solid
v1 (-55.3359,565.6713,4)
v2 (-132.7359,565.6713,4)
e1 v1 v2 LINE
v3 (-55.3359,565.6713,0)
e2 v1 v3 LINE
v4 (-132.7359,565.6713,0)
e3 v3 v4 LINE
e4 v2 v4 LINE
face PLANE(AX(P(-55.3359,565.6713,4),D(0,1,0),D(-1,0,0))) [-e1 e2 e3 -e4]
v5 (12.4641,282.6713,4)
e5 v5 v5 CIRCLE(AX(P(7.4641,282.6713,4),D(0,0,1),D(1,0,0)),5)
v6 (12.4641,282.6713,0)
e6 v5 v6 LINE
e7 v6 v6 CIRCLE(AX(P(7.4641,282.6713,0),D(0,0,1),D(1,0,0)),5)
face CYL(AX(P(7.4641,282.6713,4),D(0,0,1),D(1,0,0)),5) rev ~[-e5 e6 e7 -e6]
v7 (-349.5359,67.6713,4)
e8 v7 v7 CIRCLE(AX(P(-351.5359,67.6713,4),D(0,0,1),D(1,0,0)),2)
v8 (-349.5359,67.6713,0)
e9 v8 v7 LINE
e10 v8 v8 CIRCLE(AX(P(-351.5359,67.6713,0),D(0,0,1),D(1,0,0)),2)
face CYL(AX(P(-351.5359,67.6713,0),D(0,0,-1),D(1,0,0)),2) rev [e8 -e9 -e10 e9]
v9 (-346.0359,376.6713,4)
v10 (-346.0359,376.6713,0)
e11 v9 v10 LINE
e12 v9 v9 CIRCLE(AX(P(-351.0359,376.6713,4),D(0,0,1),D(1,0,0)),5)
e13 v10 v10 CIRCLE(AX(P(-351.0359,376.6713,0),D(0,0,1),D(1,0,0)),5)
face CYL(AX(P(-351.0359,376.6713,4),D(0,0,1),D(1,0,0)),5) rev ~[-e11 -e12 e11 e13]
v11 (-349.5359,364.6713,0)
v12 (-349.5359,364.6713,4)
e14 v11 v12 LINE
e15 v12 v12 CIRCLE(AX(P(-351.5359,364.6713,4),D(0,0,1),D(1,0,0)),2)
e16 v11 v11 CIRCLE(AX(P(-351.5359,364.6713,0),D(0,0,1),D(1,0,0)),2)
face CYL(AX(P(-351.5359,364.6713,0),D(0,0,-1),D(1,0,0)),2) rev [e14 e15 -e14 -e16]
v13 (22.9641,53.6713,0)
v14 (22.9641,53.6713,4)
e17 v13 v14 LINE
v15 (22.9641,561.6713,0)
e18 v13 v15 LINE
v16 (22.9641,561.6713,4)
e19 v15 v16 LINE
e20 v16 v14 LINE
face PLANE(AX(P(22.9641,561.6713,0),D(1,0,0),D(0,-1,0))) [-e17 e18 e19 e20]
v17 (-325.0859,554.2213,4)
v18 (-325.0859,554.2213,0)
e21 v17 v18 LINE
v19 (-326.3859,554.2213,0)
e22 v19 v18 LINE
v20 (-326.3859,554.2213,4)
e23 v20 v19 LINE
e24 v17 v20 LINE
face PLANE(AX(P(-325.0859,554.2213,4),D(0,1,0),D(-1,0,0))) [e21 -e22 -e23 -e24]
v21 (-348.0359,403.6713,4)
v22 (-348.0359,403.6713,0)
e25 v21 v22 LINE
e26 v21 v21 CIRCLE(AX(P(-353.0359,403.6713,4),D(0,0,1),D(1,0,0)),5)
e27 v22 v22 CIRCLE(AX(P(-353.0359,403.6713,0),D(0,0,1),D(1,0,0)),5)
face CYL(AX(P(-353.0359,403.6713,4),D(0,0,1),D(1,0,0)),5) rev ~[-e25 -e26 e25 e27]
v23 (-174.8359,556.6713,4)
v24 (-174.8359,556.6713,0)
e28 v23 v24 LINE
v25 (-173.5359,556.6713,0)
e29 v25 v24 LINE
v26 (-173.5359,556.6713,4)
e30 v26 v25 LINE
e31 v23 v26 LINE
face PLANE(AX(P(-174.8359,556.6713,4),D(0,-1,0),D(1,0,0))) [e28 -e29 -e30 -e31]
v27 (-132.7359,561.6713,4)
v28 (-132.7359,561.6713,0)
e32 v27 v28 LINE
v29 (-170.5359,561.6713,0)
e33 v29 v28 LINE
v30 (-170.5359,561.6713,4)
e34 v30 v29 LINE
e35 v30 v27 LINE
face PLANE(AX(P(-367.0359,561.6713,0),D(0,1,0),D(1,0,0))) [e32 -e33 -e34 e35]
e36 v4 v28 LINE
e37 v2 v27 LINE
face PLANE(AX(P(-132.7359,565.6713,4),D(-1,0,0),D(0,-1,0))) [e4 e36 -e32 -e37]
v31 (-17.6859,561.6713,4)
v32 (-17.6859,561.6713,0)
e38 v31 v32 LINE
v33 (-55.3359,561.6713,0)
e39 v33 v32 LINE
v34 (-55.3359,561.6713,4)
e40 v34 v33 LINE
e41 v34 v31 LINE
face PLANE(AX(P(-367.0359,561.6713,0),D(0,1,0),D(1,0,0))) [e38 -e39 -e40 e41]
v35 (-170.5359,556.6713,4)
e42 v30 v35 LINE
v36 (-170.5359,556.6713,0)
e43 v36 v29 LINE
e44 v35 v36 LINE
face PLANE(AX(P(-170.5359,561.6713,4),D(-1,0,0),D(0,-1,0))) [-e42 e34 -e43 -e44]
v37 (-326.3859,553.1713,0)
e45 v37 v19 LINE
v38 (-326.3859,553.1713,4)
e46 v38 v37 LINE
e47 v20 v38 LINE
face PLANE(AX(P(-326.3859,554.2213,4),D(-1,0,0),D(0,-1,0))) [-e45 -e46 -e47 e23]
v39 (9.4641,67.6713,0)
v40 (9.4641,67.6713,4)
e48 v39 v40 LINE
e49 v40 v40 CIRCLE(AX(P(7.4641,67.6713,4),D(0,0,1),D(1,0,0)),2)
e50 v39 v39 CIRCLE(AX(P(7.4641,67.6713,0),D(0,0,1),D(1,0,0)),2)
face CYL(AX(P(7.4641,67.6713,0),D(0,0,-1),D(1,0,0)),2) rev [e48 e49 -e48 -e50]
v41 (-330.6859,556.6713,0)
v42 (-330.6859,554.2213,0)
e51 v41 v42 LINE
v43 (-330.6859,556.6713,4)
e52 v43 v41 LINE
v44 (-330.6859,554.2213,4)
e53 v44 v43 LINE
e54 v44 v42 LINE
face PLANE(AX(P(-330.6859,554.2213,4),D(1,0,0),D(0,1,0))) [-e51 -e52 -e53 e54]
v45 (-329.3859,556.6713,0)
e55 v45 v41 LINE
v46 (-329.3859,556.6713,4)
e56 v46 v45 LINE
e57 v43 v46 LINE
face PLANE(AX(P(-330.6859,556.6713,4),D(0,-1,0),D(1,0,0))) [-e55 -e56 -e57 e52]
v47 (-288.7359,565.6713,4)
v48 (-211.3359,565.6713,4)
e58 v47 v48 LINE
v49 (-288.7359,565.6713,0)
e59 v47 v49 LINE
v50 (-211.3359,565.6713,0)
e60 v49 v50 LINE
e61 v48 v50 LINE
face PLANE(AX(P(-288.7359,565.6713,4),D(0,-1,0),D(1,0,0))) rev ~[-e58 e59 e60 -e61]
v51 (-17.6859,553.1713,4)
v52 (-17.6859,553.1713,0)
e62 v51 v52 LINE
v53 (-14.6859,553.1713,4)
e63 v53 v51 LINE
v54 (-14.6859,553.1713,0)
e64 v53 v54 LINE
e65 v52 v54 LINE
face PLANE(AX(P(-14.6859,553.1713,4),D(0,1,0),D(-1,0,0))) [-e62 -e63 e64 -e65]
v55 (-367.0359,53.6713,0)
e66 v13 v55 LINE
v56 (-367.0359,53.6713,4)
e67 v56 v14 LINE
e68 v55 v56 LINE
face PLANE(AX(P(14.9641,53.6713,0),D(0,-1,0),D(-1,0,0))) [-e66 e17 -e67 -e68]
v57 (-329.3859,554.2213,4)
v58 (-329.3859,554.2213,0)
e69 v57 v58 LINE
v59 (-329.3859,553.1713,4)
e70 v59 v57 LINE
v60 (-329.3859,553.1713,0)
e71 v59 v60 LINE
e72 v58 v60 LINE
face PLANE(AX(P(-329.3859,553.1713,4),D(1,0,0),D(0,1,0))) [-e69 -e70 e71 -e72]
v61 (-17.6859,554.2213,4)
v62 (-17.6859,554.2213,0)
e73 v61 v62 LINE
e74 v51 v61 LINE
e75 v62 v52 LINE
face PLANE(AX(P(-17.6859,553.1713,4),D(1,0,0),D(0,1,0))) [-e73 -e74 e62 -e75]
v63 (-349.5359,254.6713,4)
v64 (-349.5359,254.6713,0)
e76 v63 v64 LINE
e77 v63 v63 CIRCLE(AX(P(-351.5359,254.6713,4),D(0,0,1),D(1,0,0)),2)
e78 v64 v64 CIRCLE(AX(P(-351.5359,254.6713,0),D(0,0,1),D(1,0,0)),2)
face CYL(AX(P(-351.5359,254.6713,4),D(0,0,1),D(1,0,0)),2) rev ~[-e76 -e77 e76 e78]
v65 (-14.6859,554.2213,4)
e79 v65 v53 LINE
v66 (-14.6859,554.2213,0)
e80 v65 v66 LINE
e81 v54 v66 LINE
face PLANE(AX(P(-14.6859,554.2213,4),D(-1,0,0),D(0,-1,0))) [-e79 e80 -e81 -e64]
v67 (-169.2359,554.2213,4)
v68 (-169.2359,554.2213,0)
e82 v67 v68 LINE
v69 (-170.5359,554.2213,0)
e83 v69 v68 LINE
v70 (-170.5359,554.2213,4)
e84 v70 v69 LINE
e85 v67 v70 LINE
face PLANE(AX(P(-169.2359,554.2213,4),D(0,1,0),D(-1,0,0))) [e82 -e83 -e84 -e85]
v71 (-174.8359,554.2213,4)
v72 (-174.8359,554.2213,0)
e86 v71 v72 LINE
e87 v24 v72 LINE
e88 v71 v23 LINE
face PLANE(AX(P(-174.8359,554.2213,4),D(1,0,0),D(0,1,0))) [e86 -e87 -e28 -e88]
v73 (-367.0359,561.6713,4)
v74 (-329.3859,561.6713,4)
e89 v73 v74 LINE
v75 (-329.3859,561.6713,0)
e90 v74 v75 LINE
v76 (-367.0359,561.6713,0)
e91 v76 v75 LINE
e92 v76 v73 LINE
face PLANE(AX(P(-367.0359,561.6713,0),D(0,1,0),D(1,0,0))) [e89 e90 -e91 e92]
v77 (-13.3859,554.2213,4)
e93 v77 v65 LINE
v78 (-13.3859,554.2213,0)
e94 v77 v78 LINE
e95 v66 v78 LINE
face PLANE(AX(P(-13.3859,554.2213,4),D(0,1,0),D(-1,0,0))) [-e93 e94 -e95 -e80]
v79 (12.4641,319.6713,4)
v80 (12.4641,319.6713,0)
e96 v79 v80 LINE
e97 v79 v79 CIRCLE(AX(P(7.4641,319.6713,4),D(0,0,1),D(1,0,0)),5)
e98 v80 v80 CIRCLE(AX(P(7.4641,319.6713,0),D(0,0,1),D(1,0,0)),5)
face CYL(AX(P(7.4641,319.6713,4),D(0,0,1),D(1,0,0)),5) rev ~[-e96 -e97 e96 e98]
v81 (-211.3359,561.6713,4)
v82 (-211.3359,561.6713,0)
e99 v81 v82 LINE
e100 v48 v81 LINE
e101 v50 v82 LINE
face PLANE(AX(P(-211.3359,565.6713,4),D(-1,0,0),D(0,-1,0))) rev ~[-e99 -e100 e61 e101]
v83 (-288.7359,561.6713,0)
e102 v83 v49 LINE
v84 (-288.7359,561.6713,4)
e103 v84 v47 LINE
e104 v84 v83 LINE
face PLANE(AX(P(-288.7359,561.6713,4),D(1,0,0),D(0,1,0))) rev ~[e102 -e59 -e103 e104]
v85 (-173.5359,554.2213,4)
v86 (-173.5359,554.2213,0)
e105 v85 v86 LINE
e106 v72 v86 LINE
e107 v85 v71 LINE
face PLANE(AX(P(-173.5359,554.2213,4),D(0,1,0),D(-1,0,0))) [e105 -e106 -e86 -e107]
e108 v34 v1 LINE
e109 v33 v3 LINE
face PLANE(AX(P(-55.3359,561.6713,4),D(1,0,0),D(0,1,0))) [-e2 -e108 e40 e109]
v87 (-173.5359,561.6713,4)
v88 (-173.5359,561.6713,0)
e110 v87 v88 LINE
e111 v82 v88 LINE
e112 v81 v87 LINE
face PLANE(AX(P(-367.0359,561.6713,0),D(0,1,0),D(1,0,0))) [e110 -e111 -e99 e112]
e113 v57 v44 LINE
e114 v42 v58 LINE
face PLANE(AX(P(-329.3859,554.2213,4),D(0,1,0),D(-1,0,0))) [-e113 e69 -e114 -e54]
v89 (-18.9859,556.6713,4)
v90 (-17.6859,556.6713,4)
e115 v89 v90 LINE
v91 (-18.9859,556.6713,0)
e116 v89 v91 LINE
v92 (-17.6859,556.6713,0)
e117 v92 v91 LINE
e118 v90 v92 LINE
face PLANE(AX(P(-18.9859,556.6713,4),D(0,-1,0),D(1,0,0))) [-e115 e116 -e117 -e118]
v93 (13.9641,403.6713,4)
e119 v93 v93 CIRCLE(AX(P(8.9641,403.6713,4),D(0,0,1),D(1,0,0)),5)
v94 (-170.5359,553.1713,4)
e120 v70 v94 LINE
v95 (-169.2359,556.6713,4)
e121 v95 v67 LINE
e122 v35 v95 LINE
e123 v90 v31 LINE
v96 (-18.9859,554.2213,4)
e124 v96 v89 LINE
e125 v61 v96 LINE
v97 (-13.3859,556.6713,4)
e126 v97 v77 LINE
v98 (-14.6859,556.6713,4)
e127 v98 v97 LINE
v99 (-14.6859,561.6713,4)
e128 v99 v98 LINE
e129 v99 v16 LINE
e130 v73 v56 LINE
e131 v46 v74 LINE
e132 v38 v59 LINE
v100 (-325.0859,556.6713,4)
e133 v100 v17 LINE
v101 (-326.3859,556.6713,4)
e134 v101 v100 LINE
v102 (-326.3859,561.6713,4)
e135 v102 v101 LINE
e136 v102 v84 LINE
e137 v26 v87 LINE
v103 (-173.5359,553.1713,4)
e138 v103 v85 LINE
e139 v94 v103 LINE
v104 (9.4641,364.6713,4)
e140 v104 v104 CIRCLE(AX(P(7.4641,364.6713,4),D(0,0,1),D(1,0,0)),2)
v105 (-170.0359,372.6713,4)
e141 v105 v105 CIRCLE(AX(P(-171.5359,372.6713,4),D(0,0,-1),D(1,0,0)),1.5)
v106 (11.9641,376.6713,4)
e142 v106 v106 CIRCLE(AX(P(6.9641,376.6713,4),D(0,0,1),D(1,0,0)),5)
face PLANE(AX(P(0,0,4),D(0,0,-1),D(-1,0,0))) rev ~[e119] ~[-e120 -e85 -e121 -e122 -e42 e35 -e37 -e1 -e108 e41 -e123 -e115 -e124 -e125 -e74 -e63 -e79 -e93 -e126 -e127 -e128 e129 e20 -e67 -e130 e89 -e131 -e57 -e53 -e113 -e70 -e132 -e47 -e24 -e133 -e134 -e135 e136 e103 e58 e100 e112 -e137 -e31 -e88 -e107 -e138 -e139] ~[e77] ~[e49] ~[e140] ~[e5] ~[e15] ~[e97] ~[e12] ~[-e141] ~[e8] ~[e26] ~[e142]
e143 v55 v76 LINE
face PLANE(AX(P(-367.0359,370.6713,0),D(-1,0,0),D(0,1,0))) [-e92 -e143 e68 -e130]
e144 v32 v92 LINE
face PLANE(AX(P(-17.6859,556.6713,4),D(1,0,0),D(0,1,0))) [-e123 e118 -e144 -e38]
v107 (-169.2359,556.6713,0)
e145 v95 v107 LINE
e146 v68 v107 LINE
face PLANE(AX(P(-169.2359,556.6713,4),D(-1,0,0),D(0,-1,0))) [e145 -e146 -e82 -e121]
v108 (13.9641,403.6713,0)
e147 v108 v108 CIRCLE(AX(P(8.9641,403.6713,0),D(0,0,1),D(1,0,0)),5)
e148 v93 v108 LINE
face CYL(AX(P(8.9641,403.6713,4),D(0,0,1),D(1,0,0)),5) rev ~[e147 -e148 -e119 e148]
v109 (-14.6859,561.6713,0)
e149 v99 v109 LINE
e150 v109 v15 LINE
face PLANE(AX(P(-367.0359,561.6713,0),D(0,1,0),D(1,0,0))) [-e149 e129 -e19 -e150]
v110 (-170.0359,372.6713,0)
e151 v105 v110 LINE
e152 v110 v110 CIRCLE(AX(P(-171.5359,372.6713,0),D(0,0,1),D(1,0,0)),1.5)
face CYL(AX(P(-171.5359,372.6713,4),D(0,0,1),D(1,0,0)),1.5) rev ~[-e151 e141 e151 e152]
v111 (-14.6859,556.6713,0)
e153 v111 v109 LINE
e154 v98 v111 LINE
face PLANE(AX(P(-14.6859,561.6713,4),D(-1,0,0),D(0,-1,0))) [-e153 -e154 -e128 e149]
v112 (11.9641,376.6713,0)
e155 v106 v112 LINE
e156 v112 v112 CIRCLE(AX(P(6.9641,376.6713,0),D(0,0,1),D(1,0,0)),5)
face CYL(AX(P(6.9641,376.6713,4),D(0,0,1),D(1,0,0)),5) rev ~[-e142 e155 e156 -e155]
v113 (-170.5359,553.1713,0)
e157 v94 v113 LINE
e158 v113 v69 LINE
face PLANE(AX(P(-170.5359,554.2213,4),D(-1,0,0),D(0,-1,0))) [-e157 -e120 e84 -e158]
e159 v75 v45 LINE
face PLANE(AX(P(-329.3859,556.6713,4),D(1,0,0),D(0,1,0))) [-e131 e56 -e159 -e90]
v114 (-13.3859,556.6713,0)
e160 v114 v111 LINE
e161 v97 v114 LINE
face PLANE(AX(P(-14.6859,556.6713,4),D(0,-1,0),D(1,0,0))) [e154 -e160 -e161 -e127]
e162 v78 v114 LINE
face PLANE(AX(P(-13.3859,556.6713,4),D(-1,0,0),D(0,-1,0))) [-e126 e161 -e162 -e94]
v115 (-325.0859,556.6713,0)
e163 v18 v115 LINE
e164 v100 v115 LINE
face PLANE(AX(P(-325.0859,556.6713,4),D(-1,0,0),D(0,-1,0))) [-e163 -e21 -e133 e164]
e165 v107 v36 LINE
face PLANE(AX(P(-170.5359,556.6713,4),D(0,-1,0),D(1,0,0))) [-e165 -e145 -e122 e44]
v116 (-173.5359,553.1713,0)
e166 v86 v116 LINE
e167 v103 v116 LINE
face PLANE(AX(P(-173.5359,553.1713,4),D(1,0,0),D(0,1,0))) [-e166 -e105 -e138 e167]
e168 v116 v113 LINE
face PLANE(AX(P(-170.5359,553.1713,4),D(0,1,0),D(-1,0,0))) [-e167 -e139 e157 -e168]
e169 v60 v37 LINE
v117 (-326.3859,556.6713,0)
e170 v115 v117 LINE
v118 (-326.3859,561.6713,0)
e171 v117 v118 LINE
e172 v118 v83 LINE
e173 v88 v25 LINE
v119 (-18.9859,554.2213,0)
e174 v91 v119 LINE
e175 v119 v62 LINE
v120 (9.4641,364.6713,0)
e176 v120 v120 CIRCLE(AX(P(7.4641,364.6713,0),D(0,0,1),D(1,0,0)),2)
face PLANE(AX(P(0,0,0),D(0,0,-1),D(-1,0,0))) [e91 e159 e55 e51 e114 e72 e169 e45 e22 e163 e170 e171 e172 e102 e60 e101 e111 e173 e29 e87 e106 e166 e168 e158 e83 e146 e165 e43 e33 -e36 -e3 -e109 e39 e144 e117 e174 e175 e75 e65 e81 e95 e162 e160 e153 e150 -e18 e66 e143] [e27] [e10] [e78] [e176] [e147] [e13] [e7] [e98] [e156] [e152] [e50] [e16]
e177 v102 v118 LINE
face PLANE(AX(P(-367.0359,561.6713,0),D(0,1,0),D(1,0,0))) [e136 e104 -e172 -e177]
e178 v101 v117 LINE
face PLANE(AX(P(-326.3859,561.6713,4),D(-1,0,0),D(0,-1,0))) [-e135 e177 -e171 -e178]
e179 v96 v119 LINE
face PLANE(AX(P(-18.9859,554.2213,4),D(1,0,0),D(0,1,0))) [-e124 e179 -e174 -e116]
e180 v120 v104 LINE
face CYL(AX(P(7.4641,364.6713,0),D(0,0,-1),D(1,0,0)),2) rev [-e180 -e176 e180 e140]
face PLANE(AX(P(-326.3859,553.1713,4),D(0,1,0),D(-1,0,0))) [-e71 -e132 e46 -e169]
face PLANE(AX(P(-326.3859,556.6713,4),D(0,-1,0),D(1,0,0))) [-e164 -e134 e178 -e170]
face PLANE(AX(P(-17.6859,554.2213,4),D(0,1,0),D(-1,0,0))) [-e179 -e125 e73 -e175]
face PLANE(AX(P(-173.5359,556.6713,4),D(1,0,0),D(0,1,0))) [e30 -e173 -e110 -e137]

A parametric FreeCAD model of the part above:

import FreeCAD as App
import Part
import Sketcher
from FreeCAD import Vector
Q = App.Units.Quantity

doc = App.newDocument("Part")
body = doc.addObject("PartDesign::Body", "Body")

# Sketch on XY plane
sketch1 = body.newObject("Sketcher::SketchObject", "Sketch")
sketch1.AttachmentSupport = (doc.getObject("XY_Plane"), [""])
sketch1.MapMode = "FlatFace"
sketch1.addGeometry([
    Part.LineSegment(Vector(-367.0359, 370.6713, 0), Vector(-367.0359, 53.6713, 0)),  # 0
    Part.LineSegment(Vector(-367.0359, 53.6713, 0), Vector(22.9641, 53.6713, 0)),  # 1
    Part.LineSegment(Vector(22.9641, 53.6713, 0), Vector(22.9641, 370.6713, 0)),  # 2
    Part.LineSegment(Vector(22.9641, 370.6713, 0), Vector(-367.0359, 370.6713, 0)),  # 3
    Part.Circle(Vector(-351.5359, 67.6713, 0), Vector(0, 0, 1), 2),  # 4
    Part.Circle(Vector(7.4641, 67.6713, 0), Vector(0, 0, 1), 2),  # 5
    Part.Circle(Vector(-351.5359, 364.6713, 0), Vector(0, 0, 1), 2),  # 6
    Part.Circle(Vector(7.4641, 364.6713, 0), Vector(0, 0, 1), 2),  # 7
], False)
sketch1.addConstraint([
    Sketcher.Constraint("Coincident", 0, 2, 1, 1),
    Sketcher.Constraint("Coincident", 1, 2, 2, 1),
    Sketcher.Constraint("Coincident", 2, 2, 3, 1),
    Sketcher.Constraint("Coincident", 3, 2, 0, 1),
    Sketcher.Constraint("Vertical", 0),
    Sketcher.Constraint("Horizontal", 1),
    Sketcher.Constraint("Vertical", 2),
    Sketcher.Constraint("Horizontal", 3),
    Sketcher.Constraint("Equal", 4, 5),
    Sketcher.Constraint("Equal", 5, 6),
    Sketcher.Constraint("Equal", 6, 7),
    Sketcher.Constraint("Horizontal", 4, 3, 5, 3),
    Sketcher.Constraint("Horizontal", 6, 3, 7, 3),
    Sketcher.Constraint("Vertical", 4, 3, 6, 3),
    Sketcher.Constraint("Vertical", 5, 3, 7, 3),
    Sketcher.Constraint("Diameter", 4, Q("4 mm")),
    Sketcher.Constraint("DistanceX", 1, 1, 1, 2, Q("390 mm")),
    Sketcher.Constraint("DistanceY", 0, 2, 0, 1, Q("317 mm")),
    Sketcher.Constraint("DistanceX", 4, 3, 5, 3, Q("359 mm")),
    Sketcher.Constraint("DistanceY", 4, 3, 6, 3, Q("297 mm")),
    Sketcher.Constraint("DistanceY", 0, 2, 4, 3, Q("14 mm")),
    Sketcher.Constraint("DistanceX", 0, 2, 4, 3, Q("15.5 mm")),
    Sketcher.Constraint("DistanceX", 4, 3, -1, 1, Q("351.536 mm")),
    Sketcher.Constraint("DistanceY", -1, 1, 4, 3, Q("67.6713 mm")),
])
pad1 = body.newObject("PartDesign::Pad", "Pad")
pad1.Profile = sketch1
pad1.Length = 4

# Sketch on XY plane
sketch2 = body.newObject("Sketcher::SketchObject", "Sketch001")
sketch2.AttachmentSupport = (doc.getObject("XY_Plane"), [""])
sketch2.MapMode = "FlatFace"
sketch2.addGeometry([
    Part.LineSegment(Vector(22.9641, 561.6713, 0), Vector(22.9641, 370.6713, 0)),
    Part.LineSegment(Vector(22.9641, 370.6713, 0), Vector(-367.0359, 370.6713, 0)),
    Part.LineSegment(Vector(-367.0359, 370.6713, 0), Vector(-367.0359, 561.6713, 0)),
    Part.LineSegment(Vector(-367.0359, 561.6713, 0), Vector(22.9641, 561.6713, 0)),
], False)
sketch2.addConstraint([
    Sketcher.Constraint("Coincident", 0, 2, 1, 1),
    Sketcher.Constraint("Coincident", 1, 2, 2, 1),
    Sketcher.Constraint("Coincident", 2, 2, 3, 1),
    Sketcher.Constraint("Coincident", 3, 2, 0, 1),
    Sketcher.Constraint("Vertical", 0),
    Sketcher.Constraint("Horizontal", 1),
    Sketcher.Constraint("Vertical", 2),
    Sketcher.Constraint("Horizontal", 3),
    Sketcher.Constraint("DistanceX", 1, 2, 1, 1, Q("390 mm")),
    Sketcher.Constraint("DistanceY", 0, 2, 0, 1, Q("191 mm")),
    Sketcher.Constraint("DistanceX", -1, 1, 0, 2, Q("22.964 mm")),
    Sketcher.Constraint("DistanceY", -1, 1, 0, 2, Q("370.6713 mm")),
])
pad2 = body.newObject("PartDesign::Pad", "Pad001")
pad2.Profile = sketch2
pad2.Length = 4

# Sketch on XY plane
sketch3 = body.newObject("Sketcher::SketchObject", "Sketch002")
sketch3.AttachmentSupport = (doc.getObject("XY_Plane"), [""])
sketch3.MapMode = "FlatFace"
sketch3.AttachmentOffset = App.Placement(Vector(0, 0, 4), App.Rotation())
sketch3.addGeometry([
    Part.Circle(Vector(7.4641, 319.6713, 0), Vector(0, 0, 1), 5),
    Part.Circle(Vector(7.4641, 282.6713, 0), Vector(0, 0, 1), 5),
    Part.Circle(Vector(-351.5359, 254.6713, 0), Vector(0, 0, 1), 2),
], False)
sketch3.addConstraint([
    Sketcher.Constraint("Equal", 0, 1),
    Sketcher.Constraint("Vertical", 0, 3, 1, 3),
    Sketcher.Constraint("Diameter", 0, Q("10 mm")),
    Sketcher.Constraint("Diameter", 2, Q("4 mm")),
    Sketcher.Constraint("DistanceY", 1, 3, 0, 3, Q("37 mm")),
    Sketcher.Constraint("DistanceX", 2, 3, 1, 3, Q("359 mm")),
    Sketcher.Constraint("DistanceY", 2, 3, 1, 3, Q("28 mm")),
    Sketcher.Constraint("DistanceX", -1, 1, 0, 3, Q("7.464 mm")),
    Sketcher.Constraint("DistanceY", -1, 1, 0, 3, Q("319.6713 mm")),
])
pocket1 = body.newObject("PartDesign::Pocket", "Pocket")
pocket1.Profile = sketch3
pocket1.Length = 4

# Sketch on XY plane
sketch4 = body.newObject("Sketcher::SketchObject", "Sketch003")
sketch4.AttachmentSupport = (doc.getObject("XY_Plane"), [""])
sketch4.MapMode = "FlatFace"
sketch4.AttachmentOffset = App.Placement(Vector(0, 0, 4), App.Rotation())
sketch4.addGeometry(Part.Circle(Vector(-171.5359, 372.6713, 0), Vector(0, 0, 1), 1.5), False)
sketch4.addConstraint([
    Sketcher.Constraint("Diameter", 0, Q("3 mm")),
    Sketcher.Constraint("DistanceX", 0, 3, -1, 1, Q("171.536 mm")),
    Sketcher.Constraint("DistanceY", -1, 1, 0, 3, Q("372.6713 mm")),
])
pocket2 = body.newObject("PartDesign::Pocket", "Pocket001")
pocket2.Profile = sketch4
pocket2.Length = 5

# Sketch on XY plane
sketch5 = body.newObject("Sketcher::SketchObject", "Sketch004")
sketch5.AttachmentSupport = (doc.getObject("XY_Plane"), [""])
sketch5.MapMode = "FlatFace"
sketch5.AttachmentOffset = App.Placement(Vector(0, 0, 4), App.Rotation())
sketch5.addGeometry([
    Part.Circle(Vector(8.9641, 403.6713, 0), Vector(0, 0, 1), 5),
    Part.Circle(Vector(6.9641, 376.6713, 0), Vector(0, 0, 1), 5),
    Part.Circle(Vector(-353.0359, 403.6713, 0), Vector(0, 0, 1), 5),
    Part.Circle(Vector(-351.0359, 376.6713, 0), Vector(0, 0, 1), 5),
], False)
sketch5.addConstraint([
    Sketcher.Constraint("Equal", 0, 1),
    Sketcher.Constraint("Equal", 1, 2),
    Sketcher.Constraint("Equal", 2, 3),
    Sketcher.Constraint("Horizontal", 0, 3, 2, 3),
    Sketcher.Constraint("Horizontal", 1, 3, 3, 3),
    Sketcher.Constraint("Diameter", 0, Q("10 mm")),
    Sketcher.Constraint("DistanceX", 1, 3, 0, 3, Q("2 mm")),
    Sketcher.Constraint("DistanceY", 1, 3, 0, 3, Q("27 mm")),
    Sketcher.Constraint("DistanceX", 2, 3, 1, 3, Q("360 mm")),
    Sketcher.Constraint("DistanceX", 2, 3, 3, 3, Q("2 mm")),
    Sketcher.Constraint("DistanceX", -1, 1, 0, 3, Q("8.964 mm")),
    Sketcher.Constraint("DistanceY", -1, 1, 0, 3, Q("403.6713 mm")),
])
pocket3 = body.newObject("PartDesign::Pocket", "Pocket002")
pocket3.Profile = sketch5
pocket3.Length = 10

# Sketch on XY plane
sketch6 = body.newObject("Sketcher::SketchObject", "Sketch005")
sketch6.AttachmentSupport = (doc.getObject("XY_Plane"), [""])
sketch6.MapMode = "FlatFace"
sketch6.AttachmentOffset = App.Placement(Vector(0, 0, 4), App.Rotation())
sketch6.addGeometry([
    Part.LineSegment(Vector(-132.7359, 565.6713, 0), Vector(-132.7359, 561.6713, 0)),  # 0
    Part.LineSegment(Vector(-132.7359, 561.6713, 0), Vector(-55.3359, 561.6713, 0)),  # 1
    Part.LineSegment(Vector(-55.3359, 561.6713, 0), Vector(-55.3359, 565.6713, 0)),  # 2
    Part.LineSegment(Vector(-55.3359, 565.6713, 0), Vector(-132.7359, 565.6713, 0)),  # 3
    Part.LineSegment(Vector(-288.7359, 565.6713, 0), Vector(-288.7359, 561.6713, 0)),  # 4
    Part.LineSegment(Vector(-288.7359, 561.6713, 0), Vector(-211.3359, 561.6713, 0)),  # 5
    Part.LineSegment(Vector(-211.3359, 561.6713, 0), Vector(-211.3359, 565.6713, 0)),  # 6
    Part.LineSegment(Vector(-211.3359, 565.6713, 0), Vector(-288.7359, 565.6713, 0)),  # 7
], False)
sketch6.addConstraint([
    Sketcher.Constraint("Coincident", 0, 2, 1, 1),
    Sketcher.Constraint("Coincident", 1, 2, 2, 1),
    Sketcher.Constraint("Coincident", 2, 2, 3, 1),
    Sketcher.Constraint("Coincident", 3, 2, 0, 1),
    Sketcher.Constraint("Coincident", 4, 2, 5, 1),
    Sketcher.Constraint("Coincident", 5, 2, 6, 1),
    Sketcher.Constraint("Coincident", 6, 2, 7, 1),
    Sketcher.Constraint("Coincident", 7, 2, 4, 1),
    Sketcher.Constraint("Vertical", 0),
    Sketcher.Constraint("Horizontal", 1),
    Sketcher.Constraint("Vertical", 2),
    Sketcher.Constraint("Horizontal", 3),
    Sketcher.Constraint("Vertical", 4),
    Sketcher.Constraint("Horizontal", 5),
    Sketcher.Constraint("Vertical", 6),
    Sketcher.Constraint("Horizontal", 7),
    Sketcher.Constraint("Horizontal", 1, 2, 4, 2),
    Sketcher.Constraint("Horizontal", 3, 2, 6, 2),
    Sketcher.Constraint("Equal", 3, 5),
    Sketcher.Constraint("DistanceY", 0, 2, 0, 1, Q("4 mm")),
    Sketcher.Constraint("DistanceX", 1, 1, 1, 2, Q("77.4 mm")),
    Sketcher.Constraint("DistanceX", 4, 2, 0, 2, Q("156 mm")),
    Sketcher.Constraint("DistanceX", 0, 2, -1, 1, Q("132.736 mm")),
    Sketcher.Constraint("DistanceY", -1, 1, 0, 2, Q("561.6713 mm")),
])
pad3 = body.newObject("PartDesign::Pad", "Pad002")
pad3.Profile = sketch6
pad3.Length = 4
pad3.Reversed = True

# Sketch on XY plane
sketch7 = body.newObject("Sketcher::SketchObject", "Sketch006")
sketch7.AttachmentSupport = (doc.getObject("XY_Plane"), [""])
sketch7.MapMode = "FlatFace"
sketch7.AttachmentOffset = App.Placement(Vector(0, 0, 4), App.Rotation())
sketch7.addGeometry([
    Part.LineSegment(Vector(-329.3859, 561.6713, 0), Vector(-329.3859, 556.6713, 0)),  # 0
    Part.LineSegment(Vector(-329.3859, 556.6713, 0), Vector(-330.6859, 556.6713, 0)),  # 1
    Part.LineSegment(Vector(-330.6859, 556.6713, 0), Vector(-330.6859, 554.2213, 0)),  # 2
    Part.LineSegment(Vector(-330.6859, 554.2213, 0), Vector(-329.3859, 554.2213, 0)),  # 3
    Part.LineSegment(Vector(-329.3859, 554.2213, 0), Vector(-329.3859, 553.1713, 0)),  # 4
    Part.LineSegment(Vector(-329.3859, 553.1713, 0), Vector(-326.3859, 553.1713, 0)),  # 5
    Part.LineSegment(Vector(-326.3859, 553.1713, 0), Vector(-326.3859, 554.2213, 0)),  # 6
    Part.LineSegment(Vector(-326.3859, 554.2213, 0), Vector(-325.0859, 554.2213, 0)),  # 7
    Part.LineSegment(Vector(-325.0859, 554.2213, 0), Vector(-325.0859, 556.6713, 0)),  # 8
    Part.LineSegment(Vector(-325.0859, 556.6713, 0), Vector(-326.3859, 556.6713, 0)),  # 9
    Part.LineSegment(Vector(-326.3859, 556.6713, 0), Vector(-326.3859, 561.6713, 0)),  # 10
    Part.LineSegment(Vector(-326.3859, 561.6713, 0), Vector(-329.3859, 561.6713, 0)),  # 11
    Part.LineSegment(Vector(-14.6859, 556.6713, 0), Vector(-14.6859, 561.6713, 0)),  # 12
    Part.LineSegment(Vector(-14.6859, 561.6713, 0), Vector(-17.6859, 561.6713, 0)),  # 13
    Part.LineSegment(Vector(-17.6859, 561.6713, 0), Vector(-17.6859, 556.6713, 0)),  # 14
    Part.LineSegment(Vector(-17.6859, 556.6713, 0), Vector(-18.9859, 556.6713, 0)),  # 15
    Part.LineSegment(Vector(-18.9859, 556.6713, 0), Vector(-18.9859, 554.2213, 0)),  # 16
    Part.LineSegment(Vector(-18.9859, 554.2213, 0), Vector(-17.6859, 554.2213, 0)),  # 17
    Part.LineSegment(Vector(-17.6859, 554.2213, 0), Vector(-17.6859, 553.1713, 0)),  # 18
    Part.LineSegment(Vector(-17.6859, 553.1713, 0), Vector(-14.6859, 553.1713, 0)),  # 19
    Part.LineSegment(Vector(-14.6859, 553.1713, 0), Vector(-14.6859, 554.2213, 0)),  # 20
    Part.LineSegment(Vector(-14.6859, 554.2213, 0), Vector(-13.3859, 554.2213, 0)),  # 21
    Part.LineSegment(Vector(-13.3859, 554.2213, 0), Vector(-13.3859, 556.6713, 0)),  # 22
    Part.LineSegment(Vector(-13.3859, 556.6713, 0), Vector(-14.6859, 556.6713, 0)),  # 23
    Part.LineSegment(Vector(-170.5359, 561.6713, 0), Vector(-173.5359, 561.6713, 0)),  # 24
    Part.LineSegment(Vector(-173.5359, 561.6713, 0), Vector(-173.5359, 556.6713, 0)),  # 25
    Part.LineSegment(Vector(-173.5359, 556.6713, 0), Vector(-174.8359, 556.6713, 0)),  # 26
    Part.LineSegment(Vector(-174.8359, 556.6713, 0), Vector(-174.8359, 554.2213, 0)),  # 27
    Part.LineSegment(Vector(-174.8359, 554.2213, 0), Vector(-173.5359, 554.2213, 0)),  # 28
    Part.LineSegment(Vector(-173.5359, 554.2213, 0), Vector(-173.5359, 553.1713, 0)),  # 29
    Part.LineSegment(Vector(-173.5359, 553.1713, 0), Vector(-170.5359, 553.1713, 0)),  # 30
    Part.LineSegment(Vector(-170.5359, 553.1713, 0), Vector(-170.5359, 554.2213, 0)),  # 31
    Part.LineSegment(Vector(-170.5359, 554.2213, 0), Vector(-169.2359, 554.2213, 0)),  # 32
    Part.LineSegment(Vector(-169.2359, 554.2213, 0), Vector(-169.2359, 556.6713, 0)),  # 33
    Part.LineSegment(Vector(-169.2359, 556.6713, 0), Vector(-170.5359, 556.6713, 0)),  # 34
    Part.LineSegment(Vector(-170.5359, 556.6713, 0), Vector(-170.5359, 561.6713, 0)),  # 35
], False)
sketch7.addConstraint([
    Sketcher.Constraint("Coincident", 0, 2, 1, 1),
    Sketcher.Constraint("Coincident", 1, 2, 2, 1),
    Sketcher.Constraint("Coincident", 2, 2, 3, 1),
    Sketcher.Constraint("Coincident", 3, 2, 4, 1),
    Sketcher.Constraint("Coincident", 4, 2, 5, 1),
    Sketcher.Constraint("Coincident", 5, 2, 6, 1),
    Sketcher.Constraint("Coincident", 6, 2, 7, 1),
    Sketcher.Constraint("Coincident", 7, 2, 8, 1),
    Sketcher.Constraint("Coincident", 8, 2, 9, 1),
    Sketcher.Constraint("Coincident", 9, 2, 10, 1),
    Sketcher.Constraint("Coincident", 10, 2, 11, 1),
    Sketcher.Constraint("Coincident", 11, 2, 0, 1),
    Sketcher.Constraint("Coincident", 12, 2, 13, 1),
    Sketcher.Constraint("Coincident", 13, 2, 14, 1),
    Sketcher.Constraint("Coincident", 14, 2, 15, 1),
    Sketcher.Constraint("Coincident", 15, 2, 16, 1),
    Sketcher.Constraint("Coincident", 16, 2, 17, 1),
    Sketcher.Constraint("Coincident", 17, 2, 18, 1),
    Sketcher.Constraint("Coincident", 18, 2, 19, 1),
    Sketcher.Constraint("Coincident", 19, 2, 20, 1),
    Sketcher.Constraint("Coincident", 20, 2, 21, 1),
    Sketcher.Constraint("Coincident", 21, 2, 22, 1),
    Sketcher.Constraint("Coincident", 22, 2, 23, 1),
    Sketcher.Constraint("Coincident", 23, 2, 12, 1),
    Sketcher.Constraint("Coincident", 24, 2, 25, 1),
    Sketcher.Constraint("Coincident", 25, 2, 26, 1),
    Sketcher.Constraint("Coincident", 26, 2, 27, 1),
    Sketcher.Constraint("Coincident", 27, 2, 28, 1),
    Sketcher.Constraint("Coincident", 28, 2, 29, 1),
    Sketcher.Constraint("Coincident", 29, 2, 30, 1),
    Sketcher.Constraint("Coincident", 30, 2, 31, 1),
    Sketcher.Constraint("Coincident", 31, 2, 32, 1),
    Sketcher.Constraint("Coincident", 32, 2, 33, 1),
    Sketcher.Constraint("Coincident", 33, 2, 34, 1),
    Sketcher.Constraint("Coincident", 34, 2, 35, 1),
    Sketcher.Constraint("Coincident", 35, 2, 24, 1),
    Sketcher.Constraint("Vertical", 0),
    Sketcher.Constraint("Horizontal", 1),
    Sketcher.Constraint("Vertical", 2),
    Sketcher.Constraint("Horizontal", 3),
    Sketcher.Constraint("Vertical", 4),
    Sketcher.Constraint("Horizontal", 5),
    Sketcher.Constraint("Vertical", 6),
    Sketcher.Constraint("Horizontal", 7),
    Sketcher.Constraint("Vertical", 8),
    Sketcher.Constraint("Horizontal", 9),
    Sketcher.Constraint("Vertical", 10),
    Sketcher.Constraint("Horizontal", 11),
    Sketcher.Constraint("Vertical", 12),
    Sketcher.Constraint("Horizontal", 13),
    Sketcher.Constraint("Vertical", 14),
    Sketcher.Constraint("Horizontal", 15),
    Sketcher.Constraint("Vertical", 16),
    Sketcher.Constraint("Horizontal", 17),
    Sketcher.Constraint("Vertical", 18),
    Sketcher.Constraint("Horizontal", 19),
    Sketcher.Constraint("Vertical", 20),
    Sketcher.Constraint("Horizontal", 21),
    Sketcher.Constraint("Vertical", 22),
    Sketcher.Constraint("Horizontal", 23),
    Sketcher.Constraint("Horizontal", 24),
    Sketcher.Constraint("Vertical", 25),
    Sketcher.Constraint("Horizontal", 26),
    Sketcher.Constraint("Vertical", 27),
    Sketcher.Constraint("Horizontal", 28),
    Sketcher.Constraint("Vertical", 29),
    Sketcher.Constraint("Horizontal", 30),
    Sketcher.Constraint("Vertical", 31),
    Sketcher.Constraint("Horizontal", 32),
    Sketcher.Constraint("Vertical", 33),
    Sketcher.Constraint("Horizontal", 34),
    Sketcher.Constraint("Vertical", 35),
    Sketcher.Constraint("Horizontal", 3, 2, 6, 2),
    Sketcher.Constraint("Horizontal", 1, 2, 8, 2),
    Sketcher.Constraint("Horizontal", 11, 2, 12, 2),
    Sketcher.Constraint("Horizontal", 9, 2, 14, 2),
    Sketcher.Constraint("Horizontal", 7, 2, 16, 2),
    Sketcher.Constraint("Horizontal", 5, 2, 18, 2),
    Sketcher.Constraint("Horizontal", 17, 2, 20, 2),
    Sketcher.Constraint("Horizontal", 15, 2, 22, 2),
    Sketcher.Constraint("Horizontal", 13, 2, 24, 2),
    Sketcher.Constraint("Horizontal", 23, 2, 25, 2),
    Sketcher.Constraint("Horizontal", 21, 2, 27, 2),
    Sketcher.Constraint("Horizontal", 19, 2, 29, 2),
    Sketcher.Constraint("Horizontal", 28, 2, 31, 2),
    Sketcher.Constraint("Horizontal", 26, 2, 33, 2),
    Sketcher.Constraint("Vertical", 0, 2, 3, 2),
    Sketcher.Constraint("Vertical", 6, 2, 9, 2),
    Sketcher.Constraint("Vertical", 14, 2, 17, 2),
    Sketcher.Constraint("Vertical", 12, 2, 19, 2),
    Sketcher.Constraint("Vertical", 25, 2, 28, 2),
    Sketcher.Constraint("Vertical", 31, 2, 34, 2),
    Sketcher.Constraint("Equal", 3, 7),
    Sketcher.Constraint("Equal", 11, 13),
    Sketcher.Constraint("Equal", 9, 15),
    Sketcher.Constraint("Equal", 17, 21),
    Sketcher.Constraint("Equal", 19, 24),
    Sketcher.Constraint("Equal", 23, 26),
    Sketcher.Constraint("Equal", 28, 32),
    Sketcher.Constraint("DistanceY", 0, 2, 0, 1, Q("5 mm")),
    Sketcher.Constraint("DistanceX", 1, 2, 1, 1, Q("1.3 mm")),
    Sketcher.Constraint("DistanceY", 2, 2, 2, 1, Q("2.45 mm")),
    Sketcher.Constraint("DistanceY", 18, 2, 13, 2, Q("8.5 mm")),
    Sketcher.Constraint("DistanceX", 5, 1, 5, 2, Q("3 mm")),
    Sketcher.Constraint("DistanceX", 8, 2, 12, 2, Q("310.4 mm")),
    Sketcher.Constraint("DistanceX", 8, 2, 24, 2, Q("151.55 mm")),
    Sketcher.Constraint("DistanceX", 0, 2, -1, 1, Q("329.386 mm")),
    Sketcher.Constraint("DistanceY", -1, 1, 0, 2, Q("556.6713 mm")),
])
pocket4 = body.newObject("PartDesign::Pocket", "Pocket003")
pocket4.Profile = sketch7
pocket4.Length = 10

doc.recompute()
